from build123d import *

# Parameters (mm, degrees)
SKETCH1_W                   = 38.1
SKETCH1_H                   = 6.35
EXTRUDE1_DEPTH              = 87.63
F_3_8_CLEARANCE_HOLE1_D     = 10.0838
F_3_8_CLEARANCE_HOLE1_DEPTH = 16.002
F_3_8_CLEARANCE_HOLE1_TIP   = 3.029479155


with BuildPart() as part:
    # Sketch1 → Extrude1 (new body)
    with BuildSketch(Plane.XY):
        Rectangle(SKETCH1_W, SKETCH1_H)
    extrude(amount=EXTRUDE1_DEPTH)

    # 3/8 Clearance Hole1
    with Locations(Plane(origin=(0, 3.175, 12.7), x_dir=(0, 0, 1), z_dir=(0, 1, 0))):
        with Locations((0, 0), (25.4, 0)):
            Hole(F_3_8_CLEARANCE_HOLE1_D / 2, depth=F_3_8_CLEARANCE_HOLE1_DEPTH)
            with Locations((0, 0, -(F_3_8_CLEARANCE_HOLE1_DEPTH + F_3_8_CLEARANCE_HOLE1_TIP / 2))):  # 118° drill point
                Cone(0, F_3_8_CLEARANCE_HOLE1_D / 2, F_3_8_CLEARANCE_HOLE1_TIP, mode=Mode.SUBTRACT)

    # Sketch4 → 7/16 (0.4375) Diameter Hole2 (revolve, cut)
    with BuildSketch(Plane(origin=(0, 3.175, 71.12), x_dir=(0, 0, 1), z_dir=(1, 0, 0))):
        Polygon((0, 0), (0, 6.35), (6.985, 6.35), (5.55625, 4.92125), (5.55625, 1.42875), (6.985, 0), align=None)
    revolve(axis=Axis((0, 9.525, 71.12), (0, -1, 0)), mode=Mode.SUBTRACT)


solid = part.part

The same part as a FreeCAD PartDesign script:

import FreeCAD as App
import Part
import Sketcher
Q = App.Units.Quantity


def add_polygon(sketch, points):
    """Adds a closed chain of lines whose ends are joined by coincident constraints."""
    first, n = sketch.GeometryCount, len(points)
    for a, b in zip(points, points[1:] + points[:1]):
        sketch.addGeometry(Part.LineSegment(App.Vector(*a, 0), App.Vector(*b, 0)), False)
    for i in range(n):
        sketch.addConstraint(Sketcher.Constraint("Coincident", first + i, 2, first + (i + 1) % n, 1))

doc = App.newDocument("Part")
params = doc.addObject("Spreadsheet::Sheet", "Params")
for row, (alias, value) in enumerate([
    ("sketch1_width", "1.5 in"),
    ("sketch1_height", "0.25 in"),
    ("pad1_length", "3.45 in"),
    ("sketch2_diameter", "0.397 in"),
    ("hole_diameter", "0.397 in"),
    ("hole_depth", "0.63 in"),
    ("sketch3_width", "0.25 in"),
    ("sketch3_height", "0.275 in"),
    ("groove_angle", "360 deg"),
], start=1):
    params.set(f"A{row}", alias)
    params.set(f"B{row}", "=" + value)
    params.setAlias(f"B{row}", alias)

body = doc.addObject("PartDesign::Body", "Body")

# Sketch on XY plane
sketch1 = doc.addObject("Sketcher::SketchObject", "Sketch")
body.addObject(sketch1)
sketch1.AttachmentSupport = (doc.XY_Plane, [""])
sketch1.MapMode = "FlatFace"
add_polygon(sketch1, [(-19.05, 3.175), (-19.05, -3.175), (19.05, -3.175), (19.05, 3.175)])  # lines 0-3
sketch1.addConstraint(Sketcher.Constraint("Vertical", 0))
sketch1.addConstraint(Sketcher.Constraint("Horizontal", 1))
sketch1.addConstraint(Sketcher.Constraint("Vertical", 2))
sketch1.addConstraint(Sketcher.Constraint("Horizontal", 3))
sketch1.addConstraint(Sketcher.Constraint("Symmetric", 0, 2, 2, 2, -1, 1))
sketch1.addConstraint(Sketcher.Constraint("DistanceX", 1, 1, 1, 2, Q("1.5 in")))
sketch1.addConstraint(Sketcher.Constraint("DistanceY", 0, 2, 0, 1, Q("0.25 in")))
sketch1.setExpression("Constraints[9]", "Params.sketch1_width")
sketch1.setExpression("Constraints[10]", "Params.sketch1_height")
pad1 = doc.addObject("PartDesign::Pad", "Pad")
body.addObject(pad1)
pad1.Profile = sketch1
pad1.setExpression("Length", "Params.pad1_length")

# Sketch on XZ plane
sketch2 = doc.addObject("Sketcher::SketchObject", "Sketch001")
body.addObject(sketch2)
sketch2.AttachmentSupport = (doc.XZ_Plane, [""])
sketch2.MapMode = "FlatFace"
sketch2.AttachmentOffset = App.Placement(App.Vector(0, 0, -0.125 * 25.4), App.Rotation())
sketch2.addGeometry(Part.Circle(App.Vector(0, 12.7, 0), App.Vector(0, 0, 1), 5.0419), False)
sketch2.addGeometry(Part.Circle(App.Vector(0, 38.1, 0), App.Vector(0, 0, 1), 5.0419), False)
sketch2.addConstraint(Sketcher.Constraint("Equal", 0, 1))
sketch2.addConstraint(Sketcher.Constraint("PointOnObject", 0, 3, -2))
sketch2.addConstraint(Sketcher.Constraint("PointOnObject", 1, 3, -2))
sketch2.addConstraint(Sketcher.Constraint("Diameter", 0, Q("0.397 in")))
sketch2.addConstraint(Sketcher.Constraint("DistanceY", 0, 3, 1, 3, Q("1 in")))
sketch2.addConstraint(Sketcher.Constraint("DistanceY", -1, 1, 0, 3, Q("0.5 in")))
sketch2.setExpression("Constraints[3]", "Params.sketch2_diameter")
doc.recompute()
hole = doc.addObject("PartDesign::Hole", "Hole")
body.addObject(hole)
hole.Profile = sketch2
hole.ThreadType = "None"
hole.setExpression("Diameter", "Params.hole_diameter")
hole.DepthType = "Dimension"
hole.setExpression("Depth", "Params.hole_depth")
hole.DrillPoint = "Angled"
hole.DrillPointAngle = 118
hole.Reversed = True

# Sketch on YZ plane
sketch3 = doc.addObject("Sketcher::SketchObject", "Sketch002")
body.addObject(sketch3)
sketch3.AttachmentSupport = (doc.YZ_Plane, [""])
sketch3.MapMode = "FlatFace"
add_polygon(sketch3, [(-3.175, 71.12), (3.175, 71.12), (3.175, 78.105), (1.74625, 76.67625), (-1.74625, 76.67625), (-3.175, 78.105)])  # lines 0-5
sketch3.addGeometry(Part.LineSegment(App.Vector(3.175, 71.12, 0), App.Vector(-3.175, 71.12, 0)), True)  # axis
sketch3.addConstraint(Sketcher.Constraint("Horizontal", 0))
sketch3.addConstraint(Sketcher.Constraint("Vertical", 1))
sketch3.addConstraint(Sketcher.Constraint("Horizontal", 3))
sketch3.addConstraint(Sketcher.Constraint("Vertical", 5))
sketch3.addConstraint(Sketcher.Constraint("Horizontal", 6))
sketch3.addConstraint(Sketcher.Constraint("Coincident", 6, 1, 0, 2))
sketch3.addConstraint(Sketcher.Constraint("Symmetric", 1, 2, 4, 2, -2))
sketch3.addConstraint(Sketcher.Constraint("Perpendicular", 2, 4))
sketch3.addConstraint(Sketcher.Constraint("Vertical", 4, 2, 6, 2))
sketch3.addConstraint(Sketcher.Constraint("Equal", 2, 4))
sketch3.addConstraint(Sketcher.Constraint("DistanceX", 0, 1, 0, 2, Q("0.25 in")))
sketch3.addConstraint(Sketcher.Constraint("DistanceY", -1, 1, 0, 2, Q("2.8 in")))
sketch3.addConstraint(Sketcher.Constraint("DistanceY", 1, 1, 1, 2, Q("0.275 in")))
sketch3.addConstraint(Sketcher.Constraint("DistanceX", 3, 2, 3, 1, Q("0.1375 in")))
sketch3.setExpression("Constraints[16]", "Params.sketch3_width")
sketch3.setExpression("Constraints[18]", "Params.sketch3_height")
groove = doc.addObject("PartDesign::Groove", "Groove")
body.addObject(groove)
groove.Profile = sketch3
groove.ReferenceAxis = (sketch3, ["Axis0"])
groove.setExpression("Angle", "Params.groove_angle")

doc.recompute()
